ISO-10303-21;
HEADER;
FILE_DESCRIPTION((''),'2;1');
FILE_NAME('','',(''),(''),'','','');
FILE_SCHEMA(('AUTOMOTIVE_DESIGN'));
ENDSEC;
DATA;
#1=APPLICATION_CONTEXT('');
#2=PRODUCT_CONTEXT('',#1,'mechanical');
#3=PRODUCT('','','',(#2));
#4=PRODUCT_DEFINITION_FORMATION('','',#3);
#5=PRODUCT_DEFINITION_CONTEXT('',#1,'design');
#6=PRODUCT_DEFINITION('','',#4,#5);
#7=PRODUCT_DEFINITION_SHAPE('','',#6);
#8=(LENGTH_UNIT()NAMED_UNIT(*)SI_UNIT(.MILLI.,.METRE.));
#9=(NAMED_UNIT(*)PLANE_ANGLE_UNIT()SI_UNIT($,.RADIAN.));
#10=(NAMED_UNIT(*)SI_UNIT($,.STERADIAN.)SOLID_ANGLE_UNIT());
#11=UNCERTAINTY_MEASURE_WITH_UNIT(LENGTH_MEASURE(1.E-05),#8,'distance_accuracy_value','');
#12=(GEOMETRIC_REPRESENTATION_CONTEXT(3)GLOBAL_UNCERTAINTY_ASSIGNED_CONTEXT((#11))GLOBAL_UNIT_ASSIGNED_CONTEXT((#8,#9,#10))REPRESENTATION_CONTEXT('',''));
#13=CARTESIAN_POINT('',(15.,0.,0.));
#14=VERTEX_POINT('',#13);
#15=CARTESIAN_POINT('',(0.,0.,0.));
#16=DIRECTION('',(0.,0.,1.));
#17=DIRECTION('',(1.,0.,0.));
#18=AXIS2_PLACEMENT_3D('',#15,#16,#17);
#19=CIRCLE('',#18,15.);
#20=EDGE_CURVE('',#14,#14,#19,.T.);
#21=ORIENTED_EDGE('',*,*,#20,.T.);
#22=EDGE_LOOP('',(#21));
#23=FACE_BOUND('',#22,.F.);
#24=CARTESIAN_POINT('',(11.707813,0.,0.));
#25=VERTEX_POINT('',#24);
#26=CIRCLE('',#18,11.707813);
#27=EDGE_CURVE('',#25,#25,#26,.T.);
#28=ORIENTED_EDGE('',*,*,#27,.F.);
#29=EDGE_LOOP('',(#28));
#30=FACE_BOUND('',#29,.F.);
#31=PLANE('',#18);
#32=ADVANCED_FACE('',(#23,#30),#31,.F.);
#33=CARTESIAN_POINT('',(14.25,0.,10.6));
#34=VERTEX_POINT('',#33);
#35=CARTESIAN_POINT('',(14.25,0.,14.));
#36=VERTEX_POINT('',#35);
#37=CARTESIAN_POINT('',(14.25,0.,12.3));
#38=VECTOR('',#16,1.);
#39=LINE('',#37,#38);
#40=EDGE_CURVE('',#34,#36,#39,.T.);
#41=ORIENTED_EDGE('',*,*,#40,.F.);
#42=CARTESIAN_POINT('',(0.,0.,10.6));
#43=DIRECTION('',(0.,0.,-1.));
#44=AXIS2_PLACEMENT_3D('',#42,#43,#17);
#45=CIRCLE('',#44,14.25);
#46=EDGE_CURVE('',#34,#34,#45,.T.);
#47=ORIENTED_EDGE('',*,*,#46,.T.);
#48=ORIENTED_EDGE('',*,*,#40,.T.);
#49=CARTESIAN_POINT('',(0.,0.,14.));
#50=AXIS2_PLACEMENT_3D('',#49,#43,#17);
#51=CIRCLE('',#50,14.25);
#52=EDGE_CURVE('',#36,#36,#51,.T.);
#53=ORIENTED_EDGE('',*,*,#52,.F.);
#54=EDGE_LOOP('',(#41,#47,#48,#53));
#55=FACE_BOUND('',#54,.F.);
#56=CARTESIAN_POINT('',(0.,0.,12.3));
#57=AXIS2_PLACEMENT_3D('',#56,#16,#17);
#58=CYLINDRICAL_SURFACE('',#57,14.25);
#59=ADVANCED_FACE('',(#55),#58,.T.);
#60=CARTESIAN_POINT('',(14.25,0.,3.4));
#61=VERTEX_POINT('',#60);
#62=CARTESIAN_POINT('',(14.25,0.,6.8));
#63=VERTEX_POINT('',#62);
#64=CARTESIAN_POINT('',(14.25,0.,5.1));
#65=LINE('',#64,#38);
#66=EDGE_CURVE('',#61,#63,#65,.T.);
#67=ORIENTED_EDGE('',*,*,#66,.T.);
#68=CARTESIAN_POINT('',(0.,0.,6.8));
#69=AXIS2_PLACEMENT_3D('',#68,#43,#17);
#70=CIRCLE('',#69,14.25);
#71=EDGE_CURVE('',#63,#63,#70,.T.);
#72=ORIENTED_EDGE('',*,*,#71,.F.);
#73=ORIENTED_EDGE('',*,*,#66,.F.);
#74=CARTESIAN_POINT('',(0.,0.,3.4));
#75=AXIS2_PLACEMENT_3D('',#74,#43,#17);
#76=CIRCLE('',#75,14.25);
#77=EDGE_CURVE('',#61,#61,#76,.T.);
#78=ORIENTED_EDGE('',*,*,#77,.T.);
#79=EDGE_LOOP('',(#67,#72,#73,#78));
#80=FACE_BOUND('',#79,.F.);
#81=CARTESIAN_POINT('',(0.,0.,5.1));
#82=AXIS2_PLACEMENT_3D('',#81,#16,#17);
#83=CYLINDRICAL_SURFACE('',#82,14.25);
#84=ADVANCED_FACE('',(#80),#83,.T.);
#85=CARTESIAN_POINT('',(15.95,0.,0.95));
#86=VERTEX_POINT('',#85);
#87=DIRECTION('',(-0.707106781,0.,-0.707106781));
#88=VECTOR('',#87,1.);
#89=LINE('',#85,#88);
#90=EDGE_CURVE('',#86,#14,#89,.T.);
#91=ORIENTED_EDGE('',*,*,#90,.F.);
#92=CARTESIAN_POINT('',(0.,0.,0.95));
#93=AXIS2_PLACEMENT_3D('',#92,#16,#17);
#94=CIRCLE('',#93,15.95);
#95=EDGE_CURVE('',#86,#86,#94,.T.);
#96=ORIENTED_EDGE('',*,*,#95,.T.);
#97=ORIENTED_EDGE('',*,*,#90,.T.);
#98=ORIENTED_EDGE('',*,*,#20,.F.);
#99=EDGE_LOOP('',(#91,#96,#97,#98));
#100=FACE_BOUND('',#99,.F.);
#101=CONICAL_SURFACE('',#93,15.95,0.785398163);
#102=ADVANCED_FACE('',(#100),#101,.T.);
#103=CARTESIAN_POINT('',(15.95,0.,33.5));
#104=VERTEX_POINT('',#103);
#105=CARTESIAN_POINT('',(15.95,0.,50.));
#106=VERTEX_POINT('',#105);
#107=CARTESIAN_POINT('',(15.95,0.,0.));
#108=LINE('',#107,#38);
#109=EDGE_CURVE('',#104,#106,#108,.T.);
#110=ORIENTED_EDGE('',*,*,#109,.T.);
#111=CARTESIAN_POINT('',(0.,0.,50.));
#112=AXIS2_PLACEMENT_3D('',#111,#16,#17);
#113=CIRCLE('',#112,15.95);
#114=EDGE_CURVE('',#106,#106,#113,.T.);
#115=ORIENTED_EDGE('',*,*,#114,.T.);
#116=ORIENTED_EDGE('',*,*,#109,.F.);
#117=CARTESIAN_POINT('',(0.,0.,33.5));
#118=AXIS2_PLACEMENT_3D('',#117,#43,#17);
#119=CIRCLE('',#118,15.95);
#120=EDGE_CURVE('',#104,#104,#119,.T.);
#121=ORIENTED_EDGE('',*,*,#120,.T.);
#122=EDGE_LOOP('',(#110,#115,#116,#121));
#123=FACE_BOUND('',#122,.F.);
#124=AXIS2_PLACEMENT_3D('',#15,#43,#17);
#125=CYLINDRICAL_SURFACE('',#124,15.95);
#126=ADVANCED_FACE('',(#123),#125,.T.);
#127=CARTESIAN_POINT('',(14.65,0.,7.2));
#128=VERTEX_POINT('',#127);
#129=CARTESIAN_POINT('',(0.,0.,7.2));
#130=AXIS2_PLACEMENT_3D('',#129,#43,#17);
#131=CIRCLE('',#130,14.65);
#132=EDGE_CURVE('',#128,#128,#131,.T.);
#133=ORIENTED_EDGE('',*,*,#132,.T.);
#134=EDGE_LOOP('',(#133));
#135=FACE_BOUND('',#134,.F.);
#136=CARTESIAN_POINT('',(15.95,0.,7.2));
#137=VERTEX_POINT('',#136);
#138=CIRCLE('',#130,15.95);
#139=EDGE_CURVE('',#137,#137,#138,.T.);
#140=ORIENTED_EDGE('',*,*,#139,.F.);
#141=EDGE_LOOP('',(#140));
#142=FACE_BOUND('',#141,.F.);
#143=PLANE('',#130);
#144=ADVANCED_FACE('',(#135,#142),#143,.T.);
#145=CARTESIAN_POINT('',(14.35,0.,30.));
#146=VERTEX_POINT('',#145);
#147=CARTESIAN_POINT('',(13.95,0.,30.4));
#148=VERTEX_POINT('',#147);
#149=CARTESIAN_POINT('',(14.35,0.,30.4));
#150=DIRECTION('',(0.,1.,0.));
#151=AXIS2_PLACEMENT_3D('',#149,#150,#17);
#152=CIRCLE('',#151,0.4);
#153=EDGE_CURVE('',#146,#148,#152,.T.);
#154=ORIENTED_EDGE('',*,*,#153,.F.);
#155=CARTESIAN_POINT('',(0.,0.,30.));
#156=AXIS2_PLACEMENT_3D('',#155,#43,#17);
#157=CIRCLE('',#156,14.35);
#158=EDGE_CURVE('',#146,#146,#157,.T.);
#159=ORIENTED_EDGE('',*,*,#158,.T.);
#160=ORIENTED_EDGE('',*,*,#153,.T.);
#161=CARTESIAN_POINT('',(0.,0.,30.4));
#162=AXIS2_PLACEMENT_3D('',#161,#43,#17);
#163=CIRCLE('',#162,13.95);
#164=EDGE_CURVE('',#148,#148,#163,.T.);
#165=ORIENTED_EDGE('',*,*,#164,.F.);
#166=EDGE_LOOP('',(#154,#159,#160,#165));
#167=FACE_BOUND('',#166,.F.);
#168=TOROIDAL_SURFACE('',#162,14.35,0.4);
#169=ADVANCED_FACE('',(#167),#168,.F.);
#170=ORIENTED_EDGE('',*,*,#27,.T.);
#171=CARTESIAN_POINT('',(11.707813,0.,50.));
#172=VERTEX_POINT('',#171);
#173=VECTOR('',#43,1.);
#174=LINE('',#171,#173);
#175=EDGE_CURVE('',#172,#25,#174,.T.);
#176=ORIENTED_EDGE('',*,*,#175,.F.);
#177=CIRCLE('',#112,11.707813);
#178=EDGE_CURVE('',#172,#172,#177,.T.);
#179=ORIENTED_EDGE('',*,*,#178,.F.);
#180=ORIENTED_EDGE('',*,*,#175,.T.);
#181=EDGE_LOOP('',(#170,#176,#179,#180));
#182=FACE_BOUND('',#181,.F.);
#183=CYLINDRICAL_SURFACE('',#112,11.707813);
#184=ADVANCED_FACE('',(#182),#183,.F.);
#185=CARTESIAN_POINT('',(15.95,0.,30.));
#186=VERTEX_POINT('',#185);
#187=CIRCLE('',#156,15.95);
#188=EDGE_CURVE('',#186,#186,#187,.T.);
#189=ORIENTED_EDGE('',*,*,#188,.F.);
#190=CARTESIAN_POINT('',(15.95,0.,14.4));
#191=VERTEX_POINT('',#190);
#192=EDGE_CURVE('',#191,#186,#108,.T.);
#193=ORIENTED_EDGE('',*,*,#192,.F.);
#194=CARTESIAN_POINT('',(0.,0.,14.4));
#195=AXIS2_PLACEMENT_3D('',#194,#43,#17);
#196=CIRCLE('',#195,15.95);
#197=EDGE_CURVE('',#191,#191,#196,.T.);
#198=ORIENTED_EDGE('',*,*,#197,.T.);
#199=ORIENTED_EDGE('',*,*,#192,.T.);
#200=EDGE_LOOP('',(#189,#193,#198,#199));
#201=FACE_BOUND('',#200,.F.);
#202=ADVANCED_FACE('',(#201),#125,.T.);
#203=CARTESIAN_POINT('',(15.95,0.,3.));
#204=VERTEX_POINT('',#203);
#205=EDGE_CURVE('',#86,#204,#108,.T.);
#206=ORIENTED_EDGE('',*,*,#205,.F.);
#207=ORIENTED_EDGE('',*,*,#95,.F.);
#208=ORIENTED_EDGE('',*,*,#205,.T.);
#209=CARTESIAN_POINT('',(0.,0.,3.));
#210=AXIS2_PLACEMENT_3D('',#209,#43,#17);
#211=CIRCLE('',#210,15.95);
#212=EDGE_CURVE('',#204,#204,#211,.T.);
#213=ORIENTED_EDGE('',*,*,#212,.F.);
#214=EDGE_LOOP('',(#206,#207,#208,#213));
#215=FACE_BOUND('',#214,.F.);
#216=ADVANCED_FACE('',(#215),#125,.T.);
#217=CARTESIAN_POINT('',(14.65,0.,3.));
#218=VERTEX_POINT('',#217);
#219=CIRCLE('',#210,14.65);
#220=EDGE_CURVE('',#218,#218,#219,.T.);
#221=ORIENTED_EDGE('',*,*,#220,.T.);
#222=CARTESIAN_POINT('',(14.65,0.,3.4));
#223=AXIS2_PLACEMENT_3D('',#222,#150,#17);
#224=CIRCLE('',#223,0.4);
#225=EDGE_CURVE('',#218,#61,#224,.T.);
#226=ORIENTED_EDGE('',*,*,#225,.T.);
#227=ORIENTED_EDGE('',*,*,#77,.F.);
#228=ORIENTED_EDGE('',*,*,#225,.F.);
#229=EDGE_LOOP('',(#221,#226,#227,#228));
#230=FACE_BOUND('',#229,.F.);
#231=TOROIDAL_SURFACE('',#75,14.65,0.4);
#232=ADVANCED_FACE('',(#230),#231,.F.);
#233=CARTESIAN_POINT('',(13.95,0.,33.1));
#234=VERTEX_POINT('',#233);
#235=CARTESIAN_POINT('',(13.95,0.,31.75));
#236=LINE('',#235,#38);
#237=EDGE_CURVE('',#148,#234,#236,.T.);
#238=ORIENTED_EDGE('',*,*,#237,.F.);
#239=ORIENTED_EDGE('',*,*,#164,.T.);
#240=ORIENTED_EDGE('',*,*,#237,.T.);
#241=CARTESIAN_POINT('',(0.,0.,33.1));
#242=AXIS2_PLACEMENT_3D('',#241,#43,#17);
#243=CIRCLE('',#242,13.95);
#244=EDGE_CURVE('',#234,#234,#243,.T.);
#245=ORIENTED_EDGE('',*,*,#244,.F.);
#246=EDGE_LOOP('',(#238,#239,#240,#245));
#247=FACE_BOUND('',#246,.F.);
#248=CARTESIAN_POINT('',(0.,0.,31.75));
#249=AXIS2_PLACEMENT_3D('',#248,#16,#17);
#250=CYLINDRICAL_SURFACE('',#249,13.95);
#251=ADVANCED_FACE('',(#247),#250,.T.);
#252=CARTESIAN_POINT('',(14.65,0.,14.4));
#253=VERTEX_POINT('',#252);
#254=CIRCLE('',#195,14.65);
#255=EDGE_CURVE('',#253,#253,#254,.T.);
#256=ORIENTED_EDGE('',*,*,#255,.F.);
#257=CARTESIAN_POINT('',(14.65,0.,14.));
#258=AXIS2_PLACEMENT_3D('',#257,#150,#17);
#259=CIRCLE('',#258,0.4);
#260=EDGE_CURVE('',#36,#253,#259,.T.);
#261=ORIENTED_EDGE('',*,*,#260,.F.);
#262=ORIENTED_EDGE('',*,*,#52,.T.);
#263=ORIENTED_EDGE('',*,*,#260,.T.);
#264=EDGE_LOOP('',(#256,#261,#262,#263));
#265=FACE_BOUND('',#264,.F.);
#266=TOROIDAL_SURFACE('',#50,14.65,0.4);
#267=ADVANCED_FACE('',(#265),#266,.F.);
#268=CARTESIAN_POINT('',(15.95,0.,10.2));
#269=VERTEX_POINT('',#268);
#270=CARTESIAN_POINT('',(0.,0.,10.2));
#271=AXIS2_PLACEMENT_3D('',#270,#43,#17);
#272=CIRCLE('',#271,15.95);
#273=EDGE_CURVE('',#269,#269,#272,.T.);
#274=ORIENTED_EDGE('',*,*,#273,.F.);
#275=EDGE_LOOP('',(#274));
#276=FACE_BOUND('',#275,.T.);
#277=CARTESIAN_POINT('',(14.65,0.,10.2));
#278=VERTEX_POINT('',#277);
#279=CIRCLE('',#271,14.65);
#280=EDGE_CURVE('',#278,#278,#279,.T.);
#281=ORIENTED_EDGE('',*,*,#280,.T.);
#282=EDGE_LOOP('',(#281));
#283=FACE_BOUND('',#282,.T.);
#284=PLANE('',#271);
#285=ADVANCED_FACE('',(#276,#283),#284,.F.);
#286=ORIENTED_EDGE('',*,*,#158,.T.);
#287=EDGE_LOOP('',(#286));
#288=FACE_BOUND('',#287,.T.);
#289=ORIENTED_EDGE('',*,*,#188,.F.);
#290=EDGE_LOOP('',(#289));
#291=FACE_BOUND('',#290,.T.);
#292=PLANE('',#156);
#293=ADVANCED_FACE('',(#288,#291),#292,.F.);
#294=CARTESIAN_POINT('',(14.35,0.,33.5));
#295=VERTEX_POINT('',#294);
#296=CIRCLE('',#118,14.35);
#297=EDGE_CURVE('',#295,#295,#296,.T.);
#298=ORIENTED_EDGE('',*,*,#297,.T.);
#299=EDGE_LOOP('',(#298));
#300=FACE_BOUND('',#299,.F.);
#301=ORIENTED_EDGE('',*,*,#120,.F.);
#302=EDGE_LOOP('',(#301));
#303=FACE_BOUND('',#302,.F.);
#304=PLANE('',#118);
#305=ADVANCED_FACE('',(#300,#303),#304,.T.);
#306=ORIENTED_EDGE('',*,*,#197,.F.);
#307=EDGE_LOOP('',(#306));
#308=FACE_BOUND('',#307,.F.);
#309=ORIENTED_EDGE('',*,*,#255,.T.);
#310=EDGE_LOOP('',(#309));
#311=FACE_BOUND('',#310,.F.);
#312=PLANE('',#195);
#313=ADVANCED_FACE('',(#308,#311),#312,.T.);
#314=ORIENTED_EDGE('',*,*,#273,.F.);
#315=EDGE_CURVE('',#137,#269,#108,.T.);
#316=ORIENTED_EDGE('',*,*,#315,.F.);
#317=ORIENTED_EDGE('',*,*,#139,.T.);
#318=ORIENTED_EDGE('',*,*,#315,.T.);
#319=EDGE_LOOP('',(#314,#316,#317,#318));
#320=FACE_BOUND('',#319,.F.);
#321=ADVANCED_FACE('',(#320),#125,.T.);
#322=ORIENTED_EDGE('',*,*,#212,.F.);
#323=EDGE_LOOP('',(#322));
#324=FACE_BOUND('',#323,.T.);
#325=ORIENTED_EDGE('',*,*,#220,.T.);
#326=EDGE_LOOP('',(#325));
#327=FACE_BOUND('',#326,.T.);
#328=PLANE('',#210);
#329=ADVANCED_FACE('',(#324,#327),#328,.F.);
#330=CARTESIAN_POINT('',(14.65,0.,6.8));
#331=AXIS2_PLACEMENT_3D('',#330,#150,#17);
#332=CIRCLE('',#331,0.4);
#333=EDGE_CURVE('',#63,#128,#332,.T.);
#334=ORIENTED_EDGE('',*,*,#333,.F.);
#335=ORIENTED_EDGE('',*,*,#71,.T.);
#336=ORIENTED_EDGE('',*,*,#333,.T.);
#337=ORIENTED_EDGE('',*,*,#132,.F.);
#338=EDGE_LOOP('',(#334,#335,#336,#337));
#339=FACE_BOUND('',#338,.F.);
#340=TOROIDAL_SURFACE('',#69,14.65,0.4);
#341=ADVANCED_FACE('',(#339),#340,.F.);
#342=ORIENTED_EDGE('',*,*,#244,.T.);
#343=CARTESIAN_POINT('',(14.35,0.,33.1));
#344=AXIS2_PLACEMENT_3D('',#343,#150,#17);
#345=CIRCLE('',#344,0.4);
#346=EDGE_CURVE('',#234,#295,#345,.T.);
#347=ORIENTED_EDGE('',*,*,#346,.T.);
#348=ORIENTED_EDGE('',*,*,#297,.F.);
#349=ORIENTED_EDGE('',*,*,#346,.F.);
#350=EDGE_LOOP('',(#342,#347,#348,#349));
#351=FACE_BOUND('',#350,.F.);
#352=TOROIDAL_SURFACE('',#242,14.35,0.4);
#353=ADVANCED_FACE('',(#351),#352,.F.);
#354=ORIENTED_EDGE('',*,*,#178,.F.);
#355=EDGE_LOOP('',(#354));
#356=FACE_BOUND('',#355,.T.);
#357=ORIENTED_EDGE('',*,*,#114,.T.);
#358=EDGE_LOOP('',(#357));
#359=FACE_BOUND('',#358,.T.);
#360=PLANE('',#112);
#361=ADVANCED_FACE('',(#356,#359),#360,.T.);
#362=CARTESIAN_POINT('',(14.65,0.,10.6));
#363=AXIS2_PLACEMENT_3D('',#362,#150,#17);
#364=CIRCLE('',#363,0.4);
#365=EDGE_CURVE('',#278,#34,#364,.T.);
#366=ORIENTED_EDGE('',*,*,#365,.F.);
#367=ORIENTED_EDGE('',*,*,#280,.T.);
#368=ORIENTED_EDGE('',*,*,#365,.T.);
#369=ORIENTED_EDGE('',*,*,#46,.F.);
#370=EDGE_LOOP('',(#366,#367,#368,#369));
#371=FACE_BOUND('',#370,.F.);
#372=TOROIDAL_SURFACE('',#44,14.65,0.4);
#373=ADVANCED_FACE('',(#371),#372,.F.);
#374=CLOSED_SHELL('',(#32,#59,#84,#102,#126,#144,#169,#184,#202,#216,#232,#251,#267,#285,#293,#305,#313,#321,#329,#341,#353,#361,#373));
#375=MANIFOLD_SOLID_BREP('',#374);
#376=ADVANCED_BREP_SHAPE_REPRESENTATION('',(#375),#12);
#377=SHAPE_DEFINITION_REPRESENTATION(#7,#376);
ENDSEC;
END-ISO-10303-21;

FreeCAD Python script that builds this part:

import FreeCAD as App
import Part
import Sketcher
from FreeCAD import Vector
Q = App.Units.Quantity


def edges_at(feature, points):
    """Names of the edges that pass closest to the given points."""
    edges = feature.Shape.Edges
    near = lambda p: min(range(len(edges)), key=lambda i: edges[i].distToShape(Part.Vertex(*p))[0])
    return sorted({f"Edge{near(p) + 1}" for p in points})

doc = App.newDocument("Part")
body = doc.addObject("PartDesign::Body", "Body")

sketch1 = body.newObject("Sketcher::SketchObject", "Sketch")
sketch1.AttachmentSupport = (doc.getObject("XY_Plane"), [""])
sketch1.MapMode = "FlatFace"
sketch1.addGeometry(Part.Circle(Vector(0, 0, 0), Vector(0, 0, 1), 16), False)
sketch1.addConstraint(Sketcher.Constraint("Coincident", 0, 3, -1, 1))
sketch1.addConstraint(Sketcher.Constraint("Diameter", 0, Q("31.9 mm")))
pad1 = body.newObject("PartDesign::Pad", "Pad")
pad1.Profile = sketch1
pad1.Length = 50

sketch2 = body.newObject("Sketcher::SketchObject", "Sketch001")
sketch2.AttachmentSupport = (doc.getObject("XZ_Plane"), [""])
sketch2.MapMode = "FlatFace"
sketch2.addGeometry(Part.LineSegment(Vector(14.2, 7.2, 0), Vector(14.2, 3, 0)), False)
sketch2.addGeometry(Part.LineSegment(Vector(14.2, 3, 0), Vector(15.9, 3, 0)), False)
sketch2.addGeometry(Part.LineSegment(Vector(15.9, 3, 0), Vector(15.9, 7.2, 0)), False)
sketch2.addGeometry(Part.LineSegment(Vector(15.9, 7.2, 0), Vector(14.2, 7.2, 0)), False)
sketch2.addGeometry(Part.LineSegment(Vector(14.2, 14.4, 0), Vector(14.2, 10.2, 0)), False)
sketch2.addGeometry(Part.LineSegment(Vector(14.2, 10.2, 0), Vector(15.9, 10.2, 0)), False)
sketch2.addGeometry(Part.LineSegment(Vector(15.9, 10.2, 0), Vector(15.9, 14.4, 0)), False)
sketch2.addGeometry(Part.LineSegment(Vector(15.9, 14.4, 0), Vector(14.2, 14.4, 0)), False)
sketch2.addConstraint(Sketcher.Constraint("Coincident", 0, 2, 1, 1))
sketch2.addConstraint(Sketcher.Constraint("Coincident", 1, 2, 2, 1))
sketch2.addConstraint(Sketcher.Constraint("Coincident", 2, 2, 3, 1))
sketch2.addConstraint(Sketcher.Constraint("Coincident", 3, 2, 0, 1))
sketch2.addConstraint(Sketcher.Constraint("Coincident", 4, 2, 5, 1))
sketch2.addConstraint(Sketcher.Constraint("Coincident", 5, 2, 6, 1))
sketch2.addConstraint(Sketcher.Constraint("Coincident", 6, 2, 7, 1))
sketch2.addConstraint(Sketcher.Constraint("Coincident", 7, 2, 4, 1))
sketch2.addConstraint(Sketcher.Constraint("Vertical", 0))
sketch2.addConstraint(Sketcher.Constraint("Horizontal", 1))
sketch2.addConstraint(Sketcher.Constraint("Vertical", 2))
sketch2.addConstraint(Sketcher.Constraint("Horizontal", 3))
sketch2.addConstraint(Sketcher.Constraint("Vertical", 4))
sketch2.addConstraint(Sketcher.Constraint("Horizontal", 5))
sketch2.addConstraint(Sketcher.Constraint("Vertical", 6))
sketch2.addConstraint(Sketcher.Constraint("Horizontal", 7))
sketch2.addConstraint(Sketcher.Constraint("Vertical", 3, 2, 4, 2))
sketch2.addConstraint(Sketcher.Constraint("Vertical", 2, 2, 5, 2))
sketch2.addConstraint(Sketcher.Constraint("Equal", 2, 4))
sketch2.addConstraint(Sketcher.Constraint("DistanceX", 1, 1, 1, 2, Q("1.7 mm")))
sketch2.addConstraint(Sketcher.Constraint("DistanceY", 0, 2, 0, 1, Q("4.2 mm")))
sketch2.addConstraint(Sketcher.Constraint("DistanceY", -1, 1, 0, 2, Q("3 mm")))
sketch2.addConstraint(Sketcher.Constraint("DistanceY", 3, 2, 4, 2, Q("3 mm")))
sketch2.addConstraint(Sketcher.Constraint("DistanceX", -1, 1, 0, 2, Q("14.25 mm")))
groove = body.newObject("PartDesign::Groove", "Groove")
groove.Profile = sketch2
groove.ReferenceAxis = (sketch2, ["V_Axis"])
groove.Angle = 360
doc.recompute()

fillet = body.newObject("PartDesign::Fillet", "Fillet")
fillet.Base = (groove, edges_at(groove, [
    (-14.25, 0, 3),
    (-14.25, 0, 7.2),
    (-14.25, 0, 14.4),
    (-14.25, 0, 10.2),
]))
fillet.Radius = 0.4

sketch3 = body.newObject("Sketcher::SketchObject", "Sketch002")
sketch3.AttachmentSupport = (doc.getObject("XZ_Plane"), [""])
sketch3.MapMode = "FlatFace"
sketch3.addGeometry(Part.LineSegment(Vector(13.9, 33.5, 0), Vector(13.9, 30, 0)), False)
sketch3.addGeometry(Part.LineSegment(Vector(13.9, 30, 0), Vector(15.9, 30, 0)), False)
sketch3.addGeometry(Part.LineSegment(Vector(15.9, 30, 0), Vector(15.9, 33.5, 0)), False)
sketch3.addGeometry(Part.LineSegment(Vector(15.9, 33.5, 0), Vector(13.9, 33.5, 0)), False)
sketch3.addConstraint(Sketcher.Constraint("Coincident", 0, 2, 1, 1))
sketch3.addConstraint(Sketcher.Constraint("Coincident", 1, 2, 2, 1))
sketch3.addConstraint(Sketcher.Constraint("Coincident", 2, 2, 3, 1))
sketch3.addConstraint(Sketcher.Constraint("Coincident", 3, 2, 0, 1))
sketch3.addConstraint(Sketcher.Constraint("Vertical", 0))
sketch3.addConstraint(Sketcher.Constraint("Horizontal", 1))
sketch3.addConstraint(Sketcher.Constraint("Vertical", 2))
sketch3.addConstraint(Sketcher.Constraint("Horizontal", 3))
sketch3.addConstraint(Sketcher.Constraint("DistanceX", 1, 1, 1, 2, Q("2 mm")))
sketch3.addConstraint(Sketcher.Constraint("DistanceY", 0, 2, 0, 1, Q("3.5 mm")))
sketch3.addConstraint(Sketcher.Constraint("DistanceY", -1, 1, 0, 2, Q("30 mm")))
sketch3.addConstraint(Sketcher.Constraint("DistanceX", -1, 1, 0, 2, Q("13.95 mm")))
groove2 = body.newObject("PartDesign::Groove", "Groove001")
groove2.Profile = sketch3
groove2.ReferenceAxis = (sketch3, ["V_Axis"])
groove2.Angle = 360
doc.recompute()

fillet2 = body.newObject("PartDesign::Fillet", "Fillet001")
fillet2.Base = (groove2, edges_at(groove2, [(-13.95, 0, 30), (-13.95, 0, 33.5)]))
fillet2.Radius = 0.4

sketch4 = body.newObject("Sketcher::SketchObject", "Sketch003")
sketch4.AttachmentSupport = (doc.getObject("XY_Plane"), [""])
sketch4.MapMode = "FlatFace"
sketch4.AttachmentOffset = App.Placement(Vector(0, 0, 50), App.Rotation())
sketch4.addGeometry(Part.Circle(Vector(0, 0, 0), Vector(0, 0, 1), 12), False)
sketch4.addConstraint(Sketcher.Constraint("Coincident", 0, 3, -1, 1))
sketch4.addConstraint(Sketcher.Constraint("Diameter", 0, Q("23.415626 mm")))
pocket1 = body.newObject("PartDesign::Pocket", "Pocket")
pocket1.Profile = sketch4
pocket1.Type = "ThroughAll"

sketch5 = body.newObject("Sketcher::SketchObject", "Sketch004")
sketch5.AttachmentSupport = (doc.getObject("XZ_Plane"), [""])
sketch5.MapMode = "FlatFace"
sketch5.addGeometry(Part.LineSegment(Vector(15, 0, 0), Vector(15.9, 0, 0)), False)
sketch5.addGeometry(Part.LineSegment(Vector(15.9, 0, 0), Vector(15.9, 0.9, 0)), False)
sketch5.addGeometry(Part.LineSegment(Vector(15.9, 0.9, 0), Vector(15, 0, 0)), False)
sketch5.addConstraint(Sketcher.Constraint("Coincident", 0, 2, 1, 1))
sketch5.addConstraint(Sketcher.Constraint("Coincident", 1, 2, 2, 1))
sketch5.addConstraint(Sketcher.Constraint("Coincident", 2, 2, 0, 1))
sketch5.addConstraint(Sketcher.Constraint("Horizontal", 0))
sketch5.addConstraint(Sketcher.Constraint("Vertical", 1))
sketch5.addConstraint(Sketcher.Constraint("PointOnObject", 0, 2, -1))
sketch5.addConstraint(Sketcher.Constraint("Equal", 0, 1))
sketch5.addConstraint(Sketcher.Constraint("DistanceX", -1, 1, 2, 2, Q("15 mm")))
sketch5.addConstraint(Sketcher.Constraint("DistanceX", 0, 1, 0, 2, Q("0.95 mm")))
groove3 = body.newObject("PartDesign::Groove", "Groove002")
groove3.Profile = sketch5
groove3.ReferenceAxis = (sketch5, ["V_Axis"])
groove3.Angle = 360

doc.recompute()
